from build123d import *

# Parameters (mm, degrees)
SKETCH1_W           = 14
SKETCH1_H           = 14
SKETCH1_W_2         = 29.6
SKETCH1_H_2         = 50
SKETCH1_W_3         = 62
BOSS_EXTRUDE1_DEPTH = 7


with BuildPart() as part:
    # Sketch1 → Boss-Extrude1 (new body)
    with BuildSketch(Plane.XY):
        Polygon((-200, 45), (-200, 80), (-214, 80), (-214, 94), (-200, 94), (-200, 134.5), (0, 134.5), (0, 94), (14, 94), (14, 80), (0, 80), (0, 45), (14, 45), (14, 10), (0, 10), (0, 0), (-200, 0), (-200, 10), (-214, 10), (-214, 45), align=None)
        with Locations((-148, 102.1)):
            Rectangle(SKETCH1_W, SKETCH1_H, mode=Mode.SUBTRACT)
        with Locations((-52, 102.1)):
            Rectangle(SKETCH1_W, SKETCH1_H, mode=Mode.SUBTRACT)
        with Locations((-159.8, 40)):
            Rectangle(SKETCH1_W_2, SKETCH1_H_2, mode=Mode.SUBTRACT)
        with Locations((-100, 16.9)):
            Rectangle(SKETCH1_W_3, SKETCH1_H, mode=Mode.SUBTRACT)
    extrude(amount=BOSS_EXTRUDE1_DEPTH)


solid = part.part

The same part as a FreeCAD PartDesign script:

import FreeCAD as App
import Part
import Sketcher
from FreeCAD import Vector
Q = App.Units.Quantity

doc = App.newDocument("Part")
body = doc.addObject("PartDesign::Body", "Body")

sketch1 = doc.addObject("Sketcher::SketchObject", "Sketch")
body.addObject(sketch1)
sketch1.AttachmentSupport = (doc.XY_Plane, [""])
sketch1.MapMode = "FlatFace"
sketch1.addGeometry(Part.LineSegment(Vector(-200, 80, 0), Vector(-200, 45, 0)), False)
sketch1.addGeometry(Part.LineSegment(Vector(-200, 45, 0), Vector(-214, 45, 0)), False)
sketch1.addGeometry(Part.LineSegment(Vector(-214, 45, 0), Vector(-214, 10, 0)), False)
sketch1.addGeometry(Part.LineSegment(Vector(-214, 10, 0), Vector(-200, 10, 0)), False)
sketch1.addGeometry(Part.LineSegment(Vector(-200, 10, 0), Vector(-200, 0, 0)), False)
sketch1.addGeometry(Part.LineSegment(Vector(-200, 0, 0), Vector(0, 0, 0)), False)
sketch1.addGeometry(Part.LineSegment(Vector(0, 0, 0), Vector(0, 10, 0)), False)
sketch1.addGeometry(Part.LineSegment(Vector(0, 10, 0), Vector(14, 10, 0)), False)
sketch1.addGeometry(Part.LineSegment(Vector(14, 10, 0), Vector(14, 45, 0)), False)
sketch1.addGeometry(Part.LineSegment(Vector(14, 45, 0), Vector(0, 45, 0)), False)
sketch1.addGeometry(Part.LineSegment(Vector(0, 45, 0), Vector(0, 80, 0)), False)
sketch1.addGeometry(Part.LineSegment(Vector(0, 80, 0), Vector(14, 80, 0)), False)
sketch1.addGeometry(Part.LineSegment(Vector(14, 80, 0), Vector(14, 94, 0)), False)
sketch1.addGeometry(Part.LineSegment(Vector(14, 94, 0), Vector(0, 94, 0)), False)
sketch1.addGeometry(Part.LineSegment(Vector(0, 94, 0), Vector(0, 134, 0)), False)
sketch1.addGeometry(Part.LineSegment(Vector(0, 134, 0), Vector(-200, 134, 0)), False)
sketch1.addGeometry(Part.LineSegment(Vector(-200, 134, 0), Vector(-200, 94, 0)), False)
sketch1.addGeometry(Part.LineSegment(Vector(-200, 94, 0), Vector(-214, 94, 0)), False)
sketch1.addGeometry(Part.LineSegment(Vector(-214, 94, 0), Vector(-214, 80, 0)), False)
sketch1.addGeometry(Part.LineSegment(Vector(-214, 80, 0), Vector(-200, 80, 0)), False)
sketch1.addGeometry(Part.LineSegment(Vector(-131, 10, 0), Vector(-131, 24, 0)), False)
sketch1.addGeometry(Part.LineSegment(Vector(-131, 24, 0), Vector(-69, 24, 0)), False)
sketch1.addGeometry(Part.LineSegment(Vector(-69, 24, 0), Vector(-69, 10, 0)), False)
sketch1.addGeometry(Part.LineSegment(Vector(-69, 10, 0), Vector(-131, 10, 0)), False)
sketch1.addGeometry(Part.LineSegment(Vector(-175, 15, 0), Vector(-175, 65, 0)), False)
sketch1.addGeometry(Part.LineSegment(Vector(-175, 65, 0), Vector(-145, 65, 0)), False)
sketch1.addGeometry(Part.LineSegment(Vector(-145, 65, 0), Vector(-145, 15, 0)), False)
sketch1.addGeometry(Part.LineSegment(Vector(-145, 15, 0), Vector(-175, 15, 0)), False)
sketch1.addGeometry(Part.LineSegment(Vector(-59, 95, 0), Vector(-59, 109, 0)), False)
sketch1.addGeometry(Part.LineSegment(Vector(-59, 109, 0), Vector(-45, 109, 0)), False)
sketch1.addGeometry(Part.LineSegment(Vector(-45, 109, 0), Vector(-45, 95, 0)), False)
sketch1.addGeometry(Part.LineSegment(Vector(-45, 95, 0), Vector(-59, 95, 0)), False)
sketch1.addGeometry(Part.LineSegment(Vector(-155, 95, 0), Vector(-155, 109, 0)), False)
sketch1.addGeometry(Part.LineSegment(Vector(-155, 109, 0), Vector(-141, 109, 0)), False)
sketch1.addGeometry(Part.LineSegment(Vector(-141, 109, 0), Vector(-141, 95, 0)), False)
sketch1.addGeometry(Part.LineSegment(Vector(-141, 95, 0), Vector(-155, 95, 0)), False)
sketch1.addConstraint(Sketcher.Constraint("Coincident", 0, 2, 1, 1))
sketch1.addConstraint(Sketcher.Constraint("Coincident", 1, 2, 2, 1))
sketch1.addConstraint(Sketcher.Constraint("Coincident", 2, 2, 3, 1))
sketch1.addConstraint(Sketcher.Constraint("Coincident", 3, 2, 4, 1))
sketch1.addConstraint(Sketcher.Constraint("Coincident", 4, 2, 5, 1))
sketch1.addConstraint(Sketcher.Constraint("Coincident", 5, 2, 6, 1))
sketch1.addConstraint(Sketcher.Constraint("Coincident", 6, 2, 7, 1))
sketch1.addConstraint(Sketcher.Constraint("Coincident", 7, 2, 8, 1))
sketch1.addConstraint(Sketcher.Constraint("Coincident", 8, 2, 9, 1))
sketch1.addConstraint(Sketcher.Constraint("Coincident", 9, 2, 10, 1))
sketch1.addConstraint(Sketcher.Constraint("Coincident", 10, 2, 11, 1))
sketch1.addConstraint(Sketcher.Constraint("Coincident", 11, 2, 12, 1))
sketch1.addConstraint(Sketcher.Constraint("Coincident", 12, 2, 13, 1))
sketch1.addConstraint(Sketcher.Constraint("Coincident", 13, 2, 14, 1))
sketch1.addConstraint(Sketcher.Constraint("Coincident", 14, 2, 15, 1))
sketch1.addConstraint(Sketcher.Constraint("Coincident", 15, 2, 16, 1))
sketch1.addConstraint(Sketcher.Constraint("Coincident", 16, 2, 17, 1))
sketch1.addConstraint(Sketcher.Constraint("Coincident", 17, 2, 18, 1))
sketch1.addConstraint(Sketcher.Constraint("Coincident", 18, 2, 19, 1))
sketch1.addConstraint(Sketcher.Constraint("Coincident", 19, 2, 0, 1))
sketch1.addConstraint(Sketcher.Constraint("Coincident", 20, 2, 21, 1))
sketch1.addConstraint(Sketcher.Constraint("Coincident", 21, 2, 22, 1))
sketch1.addConstraint(Sketcher.Constraint("Coincident", 22, 2, 23, 1))
sketch1.addConstraint(Sketcher.Constraint("Coincident", 23, 2, 20, 1))
sketch1.addConstraint(Sketcher.Constraint("Coincident", 24, 2, 25, 1))
sketch1.addConstraint(Sketcher.Constraint("Coincident", 25, 2, 26, 1))
sketch1.addConstraint(Sketcher.Constraint("Coincident", 26, 2, 27, 1))
sketch1.addConstraint(Sketcher.Constraint("Coincident", 27, 2, 24, 1))
sketch1.addConstraint(Sketcher.Constraint("Coincident", 28, 2, 29, 1))
sketch1.addConstraint(Sketcher.Constraint("Coincident", 29, 2, 30, 1))
sketch1.addConstraint(Sketcher.Constraint("Coincident", 30, 2, 31, 1))
sketch1.addConstraint(Sketcher.Constraint("Coincident", 31, 2, 28, 1))
sketch1.addConstraint(Sketcher.Constraint("Coincident", 32, 2, 33, 1))
sketch1.addConstraint(Sketcher.Constraint("Coincident", 33, 2, 34, 1))
sketch1.addConstraint(Sketcher.Constraint("Coincident", 34, 2, 35, 1))
sketch1.addConstraint(Sketcher.Constraint("Coincident", 35, 2, 32, 1))
sketch1.addConstraint(Sketcher.Constraint("Vertical", 0))
sketch1.addConstraint(Sketcher.Constraint("Horizontal", 1))
sketch1.addConstraint(Sketcher.Constraint("Vertical", 2))
sketch1.addConstraint(Sketcher.Constraint("Horizontal", 3))
sketch1.addConstraint(Sketcher.Constraint("Vertical", 4))
sketch1.addConstraint(Sketcher.Constraint("Horizontal", 5))
sketch1.addConstraint(Sketcher.Constraint("Vertical", 6))
sketch1.addConstraint(Sketcher.Constraint("Horizontal", 7))
sketch1.addConstraint(Sketcher.Constraint("Vertical", 8))
sketch1.addConstraint(Sketcher.Constraint("Horizontal", 9))
sketch1.addConstraint(Sketcher.Constraint("Vertical", 10))
sketch1.addConstraint(Sketcher.Constraint("Horizontal", 11))
sketch1.addConstraint(Sketcher.Constraint("Vertical", 12))
sketch1.addConstraint(Sketcher.Constraint("Horizontal", 13))
sketch1.addConstraint(Sketcher.Constraint("Vertical", 14))
sketch1.addConstraint(Sketcher.Constraint("Horizontal", 15))
sketch1.addConstraint(Sketcher.Constraint("Vertical", 16))
sketch1.addConstraint(Sketcher.Constraint("Horizontal", 17))
sketch1.addConstraint(Sketcher.Constraint("Vertical", 18))
sketch1.addConstraint(Sketcher.Constraint("Horizontal", 19))
sketch1.addConstraint(Sketcher.Constraint("Vertical", 20))
sketch1.addConstraint(Sketcher.Constraint("Horizontal", 21))
sketch1.addConstraint(Sketcher.Constraint("Vertical", 22))
sketch1.addConstraint(Sketcher.Constraint("Horizontal", 23))
sketch1.addConstraint(Sketcher.Constraint("Vertical", 24))
sketch1.addConstraint(Sketcher.Constraint("Horizontal", 25))
sketch1.addConstraint(Sketcher.Constraint("Vertical", 26))
sketch1.addConstraint(Sketcher.Constraint("Horizontal", 27))
sketch1.addConstraint(Sketcher.Constraint("Vertical", 28))
sketch1.addConstraint(Sketcher.Constraint("Horizontal", 29))
sketch1.addConstraint(Sketcher.Constraint("Vertical", 30))
sketch1.addConstraint(Sketcher.Constraint("Horizontal", 31))
sketch1.addConstraint(Sketcher.Constraint("Vertical", 32))
sketch1.addConstraint(Sketcher.Constraint("Horizontal", 33))
sketch1.addConstraint(Sketcher.Constraint("Vertical", 34))
sketch1.addConstraint(Sketcher.Constraint("Horizontal", 35))
sketch1.addConstraint(Sketcher.Constraint("Coincident", 5, 2, -1, 1))
sketch1.addConstraint(Sketcher.Constraint("PointOnObject", 9, 2, -2))
sketch1.addConstraint(Sketcher.Constraint("PointOnObject", 13, 2, -2))
sketch1.addConstraint(Sketcher.Constraint("Horizontal", 3, 2, 6, 2))
sketch1.addConstraint(Sketcher.Constraint("Horizontal", 1, 2, 8, 2))
sketch1.addConstraint(Sketcher.Constraint("Horizontal", 13, 2, 16, 2))
sketch1.addConstraint(Sketcher.Constraint("Horizontal", 11, 2, 18, 2))
sketch1.addConstraint(Sketcher.Constraint("Horizontal", 29, 2, 32, 2))
sketch1.addConstraint(Sketcher.Constraint("Horizontal", 31, 2, 34, 2))
sketch1.addConstraint(Sketcher.Constraint("Vertical", 0, 2, 3, 2))
sketch1.addConstraint(Sketcher.Constraint("Vertical", 8, 2, 11, 2))
sketch1.addConstraint(Sketcher.Constraint("Vertical", 4, 2, 15, 2))
sketch1.addConstraint(Sketcher.Constraint("Vertical", 2, 2, 17, 2))
sketch1.addConstraint(Sketcher.Constraint("Equal", 3, 7))
sketch1.addConstraint(Sketcher.Constraint("Equal", 19, 29))
sketch1.addConstraint(Sketcher.Constraint("Equal", 31, 33))
sketch1.addConstraint(Sketcher.Constraint("Equal", 0, 2))
sketch1.addConstraint(Sketcher.Constraint("Equal", 35, 12))
sketch1.addConstraint(Sketcher.Constraint("Equal", 18, 20))
sketch1.addConstraint(Sketcher.Constraint("Equal", 22, 28))
sketch1.addConstraint(Sketcher.Constraint("DistanceX", 1, 2, 1, 1, Q("14 mm")))
sketch1.addConstraint(Sketcher.Constraint("DistanceX", 5, 1, 5, 2, Q("200 mm")))
sketch1.addConstraint(Sketcher.Constraint("DistanceX", 21, 1, 21, 2, Q("62 mm")))
sketch1.addConstraint(Sketcher.Constraint("DistanceY", 0, 2, 0, 1, Q("35 mm")))
sketch1.addConstraint(Sketcher.Constraint("DistanceY", 4, 2, 4, 1, Q("10 mm")))
sketch1.addConstraint(Sketcher.Constraint("DistanceY", 24, 1, 24, 2, Q("50 mm")))
sketch1.addConstraint(Sketcher.Constraint("DistanceX", 25, 1, 25, 2, Q("29.6 mm")))
sketch1.addConstraint(Sketcher.Constraint("DistanceY", 14, 1, 14, 2, Q("40.5 mm")))
sketch1.addConstraint(Sketcher.Constraint("DistanceX", 20, 2, -1, 1, Q("131 mm")))
sketch1.addConstraint(Sketcher.Constraint("DistanceY", -1, 1, 24, 2, Q("65 mm")))
sketch1.addConstraint(Sketcher.Constraint("DistanceX", 25, 2, -1, 1, Q("145 mm")))
sketch1.addConstraint(Sketcher.Constraint("DistanceX", 28, 2, -1, 1, Q("59 mm")))
sketch1.addConstraint(Sketcher.Constraint("DistanceX", 32, 2, -1, 1, Q("155 mm")))
sketch1.addConstraint(Sketcher.Constraint("DistanceY", -1, 1, 20, 2, Q("23.9 mm")))
sketch1.addConstraint(Sketcher.Constraint("DistanceY", -1, 1, 28, 2, Q("109.1 mm")))
pad1 = doc.addObject("PartDesign::Pad", "Pad")
body.addObject(pad1)
pad1.Profile = sketch1
pad1.Length = 7

doc.recompute()
